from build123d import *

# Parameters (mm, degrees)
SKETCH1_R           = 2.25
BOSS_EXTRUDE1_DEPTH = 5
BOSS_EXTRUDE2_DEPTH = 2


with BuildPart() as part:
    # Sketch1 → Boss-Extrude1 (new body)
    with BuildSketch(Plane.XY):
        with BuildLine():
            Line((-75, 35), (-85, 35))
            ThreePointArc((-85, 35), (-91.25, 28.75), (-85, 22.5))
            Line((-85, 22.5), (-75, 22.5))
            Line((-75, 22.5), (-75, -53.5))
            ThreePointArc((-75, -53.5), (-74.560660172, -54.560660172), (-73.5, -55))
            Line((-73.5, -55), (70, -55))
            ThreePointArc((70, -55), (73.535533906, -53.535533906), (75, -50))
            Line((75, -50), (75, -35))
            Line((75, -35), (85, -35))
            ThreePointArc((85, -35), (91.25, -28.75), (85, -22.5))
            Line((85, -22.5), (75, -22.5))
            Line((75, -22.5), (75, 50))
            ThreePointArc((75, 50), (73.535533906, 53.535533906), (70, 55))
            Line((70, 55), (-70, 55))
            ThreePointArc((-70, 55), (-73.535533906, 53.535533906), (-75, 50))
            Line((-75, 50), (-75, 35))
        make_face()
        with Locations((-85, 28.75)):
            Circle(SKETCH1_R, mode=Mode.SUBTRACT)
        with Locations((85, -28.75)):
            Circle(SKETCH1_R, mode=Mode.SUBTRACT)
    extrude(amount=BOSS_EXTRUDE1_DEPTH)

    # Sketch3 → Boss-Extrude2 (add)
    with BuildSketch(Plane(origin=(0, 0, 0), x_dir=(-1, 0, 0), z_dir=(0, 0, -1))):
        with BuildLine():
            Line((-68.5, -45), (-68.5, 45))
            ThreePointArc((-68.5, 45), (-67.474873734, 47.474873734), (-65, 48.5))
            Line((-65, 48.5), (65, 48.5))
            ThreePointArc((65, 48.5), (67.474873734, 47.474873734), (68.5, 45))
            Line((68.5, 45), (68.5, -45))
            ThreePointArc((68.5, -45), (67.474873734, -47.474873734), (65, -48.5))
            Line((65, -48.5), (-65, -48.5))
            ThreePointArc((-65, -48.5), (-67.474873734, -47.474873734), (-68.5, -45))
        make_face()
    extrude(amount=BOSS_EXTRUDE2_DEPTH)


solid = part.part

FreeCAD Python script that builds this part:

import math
import FreeCAD as App
import Part
import Sketcher

V = App.Vector
Q = App.Units.Quantity

doc = App.newDocument("Part")
body = doc.addObject("PartDesign::Body", "Body")

# Sketch on XY plane
sketch1 = doc.addObject("Sketcher::SketchObject", "Sketch")
body.addObject(sketch1)
sketch1.AttachmentSupport = (doc.XY_Plane, [""])
sketch1.MapMode = "FlatFace"
sketch1.addGeometry([
    Part.LineSegment(V(-75, 35, 0), V(-85, 35, 0)),  # 0
    Part.ArcOfCircle(Part.Circle(V(-85, 28.75, 0), V(0, 0, 1), 6.25), math.radians(90), math.radians(270)),  # 1
    Part.LineSegment(V(-85, 22.5, 0), V(-75, 22.5, 0)),  # 2
    Part.LineSegment(V(-75, 22.5, 0), V(-75, -53.5, 0)),  # 3
    Part.ArcOfCircle(Part.Circle(V(-73.5, -53.5, 0), V(0, 0, 1), 1.5), math.radians(180), math.radians(270)),  # 4
    Part.LineSegment(V(-73.5, -55, 0), V(70, -55, 0)),  # 5
    Part.ArcOfCircle(Part.Circle(V(70, -50, 0), V(0, 0, 1), 5), math.radians(-90), math.radians(0)),  # 6
    Part.LineSegment(V(75, -50, 0), V(75, -35, 0)),  # 7
    Part.LineSegment(V(75, -35, 0), V(85, -35, 0)),  # 8
    Part.ArcOfCircle(Part.Circle(V(85, -28.75, 0), V(0, 0, 1), 6.25), math.radians(-90), math.radians(90)),  # 9
    Part.LineSegment(V(85, -22.5, 0), V(75, -22.5, 0)),  # 10
    Part.LineSegment(V(75, -22.5, 0), V(75, 50, 0)),  # 11
    Part.ArcOfCircle(Part.Circle(V(70, 50, 0), V(0, 0, 1), 5), math.radians(0), math.radians(90)),  # 12
    Part.LineSegment(V(70, 55, 0), V(-70, 55, 0)),  # 13
    Part.ArcOfCircle(Part.Circle(V(-70, 50, 0), V(0, 0, 1), 5), math.radians(90), math.radians(180)),  # 14
    Part.LineSegment(V(-75, 50, 0), V(-75, 35, 0)),  # 15
    Part.Circle(V(85, -28.75, 0), V(0, 0, 1), 2.25),  # 16
    Part.Circle(V(-85, 28.75, 0), V(0, 0, 1), 2.25),  # 17
], False)
sketch1.addConstraint([
    Sketcher.Constraint("Tangent", 0, 2, 1, 1),
    Sketcher.Constraint("Tangent", 1, 2, 2, 1),
    Sketcher.Constraint("Coincident", 2, 2, 3, 1),
    Sketcher.Constraint("Tangent", 3, 2, 4, 1),
    Sketcher.Constraint("Tangent", 4, 2, 5, 1),
    Sketcher.Constraint("Tangent", 5, 2, 6, 1),
    Sketcher.Constraint("Tangent", 6, 2, 7, 1),
    Sketcher.Constraint("Coincident", 7, 2, 8, 1),
    Sketcher.Constraint("Tangent", 8, 2, 9, 1),
    Sketcher.Constraint("Tangent", 9, 2, 10, 1),
    Sketcher.Constraint("Coincident", 10, 2, 11, 1),
    Sketcher.Constraint("Tangent", 11, 2, 12, 1),
    Sketcher.Constraint("Tangent", 12, 2, 13, 1),
    Sketcher.Constraint("Tangent", 13, 2, 14, 1),
    Sketcher.Constraint("Tangent", 14, 2, 15, 1),
    Sketcher.Constraint("Coincident", 15, 2, 0, 1),
    Sketcher.Constraint("Horizontal", 0),
    Sketcher.Constraint("Horizontal", 2),
    Sketcher.Constraint("Vertical", 3),
    Sketcher.Constraint("Horizontal", 5),
    Sketcher.Constraint("Vertical", 7),
    Sketcher.Constraint("Horizontal", 8),
    Sketcher.Constraint("Horizontal", 10),
    Sketcher.Constraint("Vertical", 11),
    Sketcher.Constraint("Horizontal", 13),
    Sketcher.Constraint("Vertical", 15),
    Sketcher.Constraint("Coincident", 16, 3, 9, 3),
    Sketcher.Constraint("Coincident", 17, 3, 1, 3),
    Sketcher.Constraint("Equal", 1, 9),
    Sketcher.Constraint("Equal", 6, 12),
    Sketcher.Constraint("Equal", 12, 14),
    Sketcher.Constraint("Equal", 16, 17),
    Sketcher.Constraint("Symmetric", 1, 3, 9, 3, -1, 1),
    Sketcher.Constraint("Symmetric", 6, 3, 14, 3, -1, 1),
    Sketcher.Constraint("Vertical", 6, 3, 12, 3),
    Sketcher.Constraint("Vertical", 3, 2, 14, 2),
    Sketcher.Constraint("Radius", 6, Q("5 mm")),
    Sketcher.Constraint("Diameter", 16, Q("4.5 mm")),
    Sketcher.Constraint("Radius", 4, Q("1.5 mm")),
    Sketcher.Constraint("DistanceX", 0, 2, 0, 1, Q("10 mm")),
    Sketcher.Constraint("DistanceX", 13, 2, 13, 1, Q("140 mm")),
    Sketcher.Constraint("DistanceY", 3, 2, 3, 1, Q("76 mm")),
    Sketcher.Constraint("DistanceY", 7, 1, 7, 2, Q("15 mm")),
    Sketcher.Constraint("Radius", 1, Q("6.25 mm")),
])
pad1 = doc.addObject("PartDesign::Pad", "Pad")
body.addObject(pad1)
pad1.Profile = sketch1
pad1.Length = 5

# Sketch on XY plane
sketch2 = doc.addObject("Sketcher::SketchObject", "Sketch001")
body.addObject(sketch2)
sketch2.AttachmentSupport = (doc.XY_Plane, [""])
sketch2.MapMode = "FlatFace"
sketch2.addGeometry([
    Part.LineSegment(V(68.5, 45, 0), V(68.5, -45, 0)),  # 0
    Part.ArcOfCircle(Part.Circle(V(65, -45, 0), V(0, 0, 1), 3.5), math.radians(-90), math.radians(0)),  # 1
    Part.LineSegment(V(65, -48.5, 0), V(-65, -48.5, 0)),  # 2
    Part.ArcOfCircle(Part.Circle(V(-65, -45, 0), V(0, 0, 1), 3.5), math.radians(-180), math.radians(-90)),  # 3
    Part.LineSegment(V(-68.5, -45, 0), V(-68.5, 45, 0)),  # 4
    Part.ArcOfCircle(Part.Circle(V(-65, 45, 0), V(0, 0, 1), 3.5), math.radians(90), math.radians(180)),  # 5
    Part.LineSegment(V(-65, 48.5, 0), V(65, 48.5, 0)),  # 6
    Part.ArcOfCircle(Part.Circle(V(65, 45, 0), V(0, 0, 1), 3.5), math.radians(0), math.radians(90)),  # 7
], False)
sketch2.addConstraint([
    Sketcher.Constraint("Tangent", 0, 2, 1, 2),
    Sketcher.Constraint("Tangent", 1, 1, 2, 1),
    Sketcher.Constraint("Tangent", 2, 2, 3, 2),
    Sketcher.Constraint("Tangent", 3, 1, 4, 1),
    Sketcher.Constraint("Tangent", 4, 2, 5, 2),
    Sketcher.Constraint("Tangent", 5, 1, 6, 1),
    Sketcher.Constraint("Tangent", 6, 2, 7, 2),
    Sketcher.Constraint("Tangent", 7, 1, 0, 1),
    Sketcher.Constraint("Vertical", 0),
    Sketcher.Constraint("Horizontal", 2),
    Sketcher.Constraint("Vertical", 4),
    Sketcher.Constraint("Horizontal", 6),
    Sketcher.Constraint("Equal", 1, 3),
    Sketcher.Constraint("Equal", 3, 5),
    Sketcher.Constraint("Equal", 5, 7),
    Sketcher.Constraint("Symmetric", 1, 3, 5, 3, -1, 1),
    Sketcher.Constraint("Radius", 1, Q("3.5 mm")),
    Sketcher.Constraint("DistanceX", 2, 2, 2, 1, Q("130 mm")),
    Sketcher.Constraint("DistanceY", 0, 2, 0, 1, Q("90 mm")),
])
pad2 = doc.addObject("PartDesign::Pad", "Pad001")
body.addObject(pad2)
pad2.Profile = sketch2
pad2.Length = 2
pad2.Reversed = True

doc.recompute()
